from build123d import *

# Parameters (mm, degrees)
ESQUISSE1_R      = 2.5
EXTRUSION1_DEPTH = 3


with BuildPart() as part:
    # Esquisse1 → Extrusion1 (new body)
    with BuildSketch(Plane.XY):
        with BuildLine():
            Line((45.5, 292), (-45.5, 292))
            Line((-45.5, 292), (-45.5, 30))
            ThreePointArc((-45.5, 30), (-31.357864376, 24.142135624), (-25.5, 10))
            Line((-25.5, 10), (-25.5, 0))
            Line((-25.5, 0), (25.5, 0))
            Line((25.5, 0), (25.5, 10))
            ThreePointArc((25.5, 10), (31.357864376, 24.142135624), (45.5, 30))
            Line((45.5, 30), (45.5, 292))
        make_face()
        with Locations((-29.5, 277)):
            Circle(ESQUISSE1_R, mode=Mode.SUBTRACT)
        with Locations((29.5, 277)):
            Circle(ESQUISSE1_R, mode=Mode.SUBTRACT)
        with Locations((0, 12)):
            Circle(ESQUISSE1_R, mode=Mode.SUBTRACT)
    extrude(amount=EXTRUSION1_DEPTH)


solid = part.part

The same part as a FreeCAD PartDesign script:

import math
import FreeCAD as App
import Part
import Sketcher
from FreeCAD import Vector

doc = App.newDocument("Part")
body = doc.addObject("PartDesign::Body", "Body")

# Sketch on XY plane
sketch1 = doc.addObject("Sketcher::SketchObject", "Sketch")
body.addObject(sketch1)
sketch1.AttachmentSupport = (doc.XY_Plane, [""])
sketch1.MapMode = "FlatFace"
sketch1.addGeometry([
    Part.LineSegment(Vector(45.5, 292, 0), Vector(-45.5, 292, 0)),  # 0
    Part.LineSegment(Vector(-45.5, 292, 0), Vector(-45.5, 30, 0)),  # 1
    Part.ArcOfCircle(Part.Circle(Vector(-45.5, 10, 0), Vector(0, 0, 1), 20), math.radians(0), math.radians(90)),  # 2
    Part.LineSegment(Vector(-25.5, 10, 0), Vector(-25.5, 0, 0)),  # 3
    Part.LineSegment(Vector(-25.5, 0, 0), Vector(25.5, 0, 0)),  # 4
    Part.LineSegment(Vector(25.5, 0, 0), Vector(25.5, 10, 0)),  # 5
    Part.ArcOfCircle(Part.Circle(Vector(45.5, 10, 0), Vector(0, 0, 1), 20), math.radians(90), math.radians(180)),  # 6
    Part.LineSegment(Vector(45.5, 30, 0), Vector(45.5, 292, 0)),  # 7
    Part.Circle(Vector(0, 12, 0), Vector(0, 0, 1), 2.5),  # 8
    Part.Circle(Vector(-29.5, 277, 0), Vector(0, 0, 1), 2.5),  # 9
    Part.Circle(Vector(29.5, 277, 0), Vector(0, 0, 1), 2.5),  # 10
], False)
sketch1.addConstraint([
    Sketcher.Constraint("Coincident", 0, 2, 1, 1),
    Sketcher.Constraint("Coincident", 1, 2, 2, 2),
    Sketcher.Constraint("Tangent", 2, 1, 3, 1),
    Sketcher.Constraint("Coincident", 3, 2, 4, 1),
    Sketcher.Constraint("Coincident", 4, 2, 5, 1),
    Sketcher.Constraint("Tangent", 5, 2, 6, 2),
    Sketcher.Constraint("Coincident", 6, 1, 7, 1),
    Sketcher.Constraint("Coincident", 7, 2, 0, 1),
    Sketcher.Constraint("Horizontal", 0),
    Sketcher.Constraint("Vertical", 1),
    Sketcher.Constraint("Vertical", 3),
    Sketcher.Constraint("Horizontal", 4),
    Sketcher.Constraint("Vertical", 5),
    Sketcher.Constraint("Vertical", 7),
    Sketcher.Constraint("Equal", 2, 6),
    Sketcher.Constraint("Equal", 8, 9),
    Sketcher.Constraint("Equal", 9, 10),
    Sketcher.Constraint("Symmetric", 3, 2, 4, 2, -1, 1),
    Sketcher.Constraint("Symmetric", 9, 3, 10, 3, -2),
    Sketcher.Constraint("Symmetric", 1, 2, 6, 1, -2),
    Sketcher.Constraint("PointOnObject", 8, 3, -2),
    Sketcher.Constraint("Vertical", 2, 3, 0, 2),
    Sketcher.Constraint("Diameter", 8, 5.0),
    Sketcher.Constraint("Radius", 2, 20.0),
    Sketcher.Constraint("DistanceX", 0, 2, 0, 1, 91.0),
    Sketcher.Constraint("DistanceY", 1, 2, 1, 1, 262.0),
    Sketcher.Constraint("DistanceY", 3, 2, 3, 1, 10.0),
    Sketcher.Constraint("DistanceY", -1, 1, 8, 3, 12.0),
    Sketcher.Constraint("DistanceY", -1, 1, 9, 3, 277.0),
    Sketcher.Constraint("DistanceX", 2, 3, 9, 3, 16.0),
])
pad1 = doc.addObject("PartDesign::Pad", "Pad")
body.addObject(pad1)
pad1.Profile = sketch1
pad1.Length = 3

doc.recompute()
